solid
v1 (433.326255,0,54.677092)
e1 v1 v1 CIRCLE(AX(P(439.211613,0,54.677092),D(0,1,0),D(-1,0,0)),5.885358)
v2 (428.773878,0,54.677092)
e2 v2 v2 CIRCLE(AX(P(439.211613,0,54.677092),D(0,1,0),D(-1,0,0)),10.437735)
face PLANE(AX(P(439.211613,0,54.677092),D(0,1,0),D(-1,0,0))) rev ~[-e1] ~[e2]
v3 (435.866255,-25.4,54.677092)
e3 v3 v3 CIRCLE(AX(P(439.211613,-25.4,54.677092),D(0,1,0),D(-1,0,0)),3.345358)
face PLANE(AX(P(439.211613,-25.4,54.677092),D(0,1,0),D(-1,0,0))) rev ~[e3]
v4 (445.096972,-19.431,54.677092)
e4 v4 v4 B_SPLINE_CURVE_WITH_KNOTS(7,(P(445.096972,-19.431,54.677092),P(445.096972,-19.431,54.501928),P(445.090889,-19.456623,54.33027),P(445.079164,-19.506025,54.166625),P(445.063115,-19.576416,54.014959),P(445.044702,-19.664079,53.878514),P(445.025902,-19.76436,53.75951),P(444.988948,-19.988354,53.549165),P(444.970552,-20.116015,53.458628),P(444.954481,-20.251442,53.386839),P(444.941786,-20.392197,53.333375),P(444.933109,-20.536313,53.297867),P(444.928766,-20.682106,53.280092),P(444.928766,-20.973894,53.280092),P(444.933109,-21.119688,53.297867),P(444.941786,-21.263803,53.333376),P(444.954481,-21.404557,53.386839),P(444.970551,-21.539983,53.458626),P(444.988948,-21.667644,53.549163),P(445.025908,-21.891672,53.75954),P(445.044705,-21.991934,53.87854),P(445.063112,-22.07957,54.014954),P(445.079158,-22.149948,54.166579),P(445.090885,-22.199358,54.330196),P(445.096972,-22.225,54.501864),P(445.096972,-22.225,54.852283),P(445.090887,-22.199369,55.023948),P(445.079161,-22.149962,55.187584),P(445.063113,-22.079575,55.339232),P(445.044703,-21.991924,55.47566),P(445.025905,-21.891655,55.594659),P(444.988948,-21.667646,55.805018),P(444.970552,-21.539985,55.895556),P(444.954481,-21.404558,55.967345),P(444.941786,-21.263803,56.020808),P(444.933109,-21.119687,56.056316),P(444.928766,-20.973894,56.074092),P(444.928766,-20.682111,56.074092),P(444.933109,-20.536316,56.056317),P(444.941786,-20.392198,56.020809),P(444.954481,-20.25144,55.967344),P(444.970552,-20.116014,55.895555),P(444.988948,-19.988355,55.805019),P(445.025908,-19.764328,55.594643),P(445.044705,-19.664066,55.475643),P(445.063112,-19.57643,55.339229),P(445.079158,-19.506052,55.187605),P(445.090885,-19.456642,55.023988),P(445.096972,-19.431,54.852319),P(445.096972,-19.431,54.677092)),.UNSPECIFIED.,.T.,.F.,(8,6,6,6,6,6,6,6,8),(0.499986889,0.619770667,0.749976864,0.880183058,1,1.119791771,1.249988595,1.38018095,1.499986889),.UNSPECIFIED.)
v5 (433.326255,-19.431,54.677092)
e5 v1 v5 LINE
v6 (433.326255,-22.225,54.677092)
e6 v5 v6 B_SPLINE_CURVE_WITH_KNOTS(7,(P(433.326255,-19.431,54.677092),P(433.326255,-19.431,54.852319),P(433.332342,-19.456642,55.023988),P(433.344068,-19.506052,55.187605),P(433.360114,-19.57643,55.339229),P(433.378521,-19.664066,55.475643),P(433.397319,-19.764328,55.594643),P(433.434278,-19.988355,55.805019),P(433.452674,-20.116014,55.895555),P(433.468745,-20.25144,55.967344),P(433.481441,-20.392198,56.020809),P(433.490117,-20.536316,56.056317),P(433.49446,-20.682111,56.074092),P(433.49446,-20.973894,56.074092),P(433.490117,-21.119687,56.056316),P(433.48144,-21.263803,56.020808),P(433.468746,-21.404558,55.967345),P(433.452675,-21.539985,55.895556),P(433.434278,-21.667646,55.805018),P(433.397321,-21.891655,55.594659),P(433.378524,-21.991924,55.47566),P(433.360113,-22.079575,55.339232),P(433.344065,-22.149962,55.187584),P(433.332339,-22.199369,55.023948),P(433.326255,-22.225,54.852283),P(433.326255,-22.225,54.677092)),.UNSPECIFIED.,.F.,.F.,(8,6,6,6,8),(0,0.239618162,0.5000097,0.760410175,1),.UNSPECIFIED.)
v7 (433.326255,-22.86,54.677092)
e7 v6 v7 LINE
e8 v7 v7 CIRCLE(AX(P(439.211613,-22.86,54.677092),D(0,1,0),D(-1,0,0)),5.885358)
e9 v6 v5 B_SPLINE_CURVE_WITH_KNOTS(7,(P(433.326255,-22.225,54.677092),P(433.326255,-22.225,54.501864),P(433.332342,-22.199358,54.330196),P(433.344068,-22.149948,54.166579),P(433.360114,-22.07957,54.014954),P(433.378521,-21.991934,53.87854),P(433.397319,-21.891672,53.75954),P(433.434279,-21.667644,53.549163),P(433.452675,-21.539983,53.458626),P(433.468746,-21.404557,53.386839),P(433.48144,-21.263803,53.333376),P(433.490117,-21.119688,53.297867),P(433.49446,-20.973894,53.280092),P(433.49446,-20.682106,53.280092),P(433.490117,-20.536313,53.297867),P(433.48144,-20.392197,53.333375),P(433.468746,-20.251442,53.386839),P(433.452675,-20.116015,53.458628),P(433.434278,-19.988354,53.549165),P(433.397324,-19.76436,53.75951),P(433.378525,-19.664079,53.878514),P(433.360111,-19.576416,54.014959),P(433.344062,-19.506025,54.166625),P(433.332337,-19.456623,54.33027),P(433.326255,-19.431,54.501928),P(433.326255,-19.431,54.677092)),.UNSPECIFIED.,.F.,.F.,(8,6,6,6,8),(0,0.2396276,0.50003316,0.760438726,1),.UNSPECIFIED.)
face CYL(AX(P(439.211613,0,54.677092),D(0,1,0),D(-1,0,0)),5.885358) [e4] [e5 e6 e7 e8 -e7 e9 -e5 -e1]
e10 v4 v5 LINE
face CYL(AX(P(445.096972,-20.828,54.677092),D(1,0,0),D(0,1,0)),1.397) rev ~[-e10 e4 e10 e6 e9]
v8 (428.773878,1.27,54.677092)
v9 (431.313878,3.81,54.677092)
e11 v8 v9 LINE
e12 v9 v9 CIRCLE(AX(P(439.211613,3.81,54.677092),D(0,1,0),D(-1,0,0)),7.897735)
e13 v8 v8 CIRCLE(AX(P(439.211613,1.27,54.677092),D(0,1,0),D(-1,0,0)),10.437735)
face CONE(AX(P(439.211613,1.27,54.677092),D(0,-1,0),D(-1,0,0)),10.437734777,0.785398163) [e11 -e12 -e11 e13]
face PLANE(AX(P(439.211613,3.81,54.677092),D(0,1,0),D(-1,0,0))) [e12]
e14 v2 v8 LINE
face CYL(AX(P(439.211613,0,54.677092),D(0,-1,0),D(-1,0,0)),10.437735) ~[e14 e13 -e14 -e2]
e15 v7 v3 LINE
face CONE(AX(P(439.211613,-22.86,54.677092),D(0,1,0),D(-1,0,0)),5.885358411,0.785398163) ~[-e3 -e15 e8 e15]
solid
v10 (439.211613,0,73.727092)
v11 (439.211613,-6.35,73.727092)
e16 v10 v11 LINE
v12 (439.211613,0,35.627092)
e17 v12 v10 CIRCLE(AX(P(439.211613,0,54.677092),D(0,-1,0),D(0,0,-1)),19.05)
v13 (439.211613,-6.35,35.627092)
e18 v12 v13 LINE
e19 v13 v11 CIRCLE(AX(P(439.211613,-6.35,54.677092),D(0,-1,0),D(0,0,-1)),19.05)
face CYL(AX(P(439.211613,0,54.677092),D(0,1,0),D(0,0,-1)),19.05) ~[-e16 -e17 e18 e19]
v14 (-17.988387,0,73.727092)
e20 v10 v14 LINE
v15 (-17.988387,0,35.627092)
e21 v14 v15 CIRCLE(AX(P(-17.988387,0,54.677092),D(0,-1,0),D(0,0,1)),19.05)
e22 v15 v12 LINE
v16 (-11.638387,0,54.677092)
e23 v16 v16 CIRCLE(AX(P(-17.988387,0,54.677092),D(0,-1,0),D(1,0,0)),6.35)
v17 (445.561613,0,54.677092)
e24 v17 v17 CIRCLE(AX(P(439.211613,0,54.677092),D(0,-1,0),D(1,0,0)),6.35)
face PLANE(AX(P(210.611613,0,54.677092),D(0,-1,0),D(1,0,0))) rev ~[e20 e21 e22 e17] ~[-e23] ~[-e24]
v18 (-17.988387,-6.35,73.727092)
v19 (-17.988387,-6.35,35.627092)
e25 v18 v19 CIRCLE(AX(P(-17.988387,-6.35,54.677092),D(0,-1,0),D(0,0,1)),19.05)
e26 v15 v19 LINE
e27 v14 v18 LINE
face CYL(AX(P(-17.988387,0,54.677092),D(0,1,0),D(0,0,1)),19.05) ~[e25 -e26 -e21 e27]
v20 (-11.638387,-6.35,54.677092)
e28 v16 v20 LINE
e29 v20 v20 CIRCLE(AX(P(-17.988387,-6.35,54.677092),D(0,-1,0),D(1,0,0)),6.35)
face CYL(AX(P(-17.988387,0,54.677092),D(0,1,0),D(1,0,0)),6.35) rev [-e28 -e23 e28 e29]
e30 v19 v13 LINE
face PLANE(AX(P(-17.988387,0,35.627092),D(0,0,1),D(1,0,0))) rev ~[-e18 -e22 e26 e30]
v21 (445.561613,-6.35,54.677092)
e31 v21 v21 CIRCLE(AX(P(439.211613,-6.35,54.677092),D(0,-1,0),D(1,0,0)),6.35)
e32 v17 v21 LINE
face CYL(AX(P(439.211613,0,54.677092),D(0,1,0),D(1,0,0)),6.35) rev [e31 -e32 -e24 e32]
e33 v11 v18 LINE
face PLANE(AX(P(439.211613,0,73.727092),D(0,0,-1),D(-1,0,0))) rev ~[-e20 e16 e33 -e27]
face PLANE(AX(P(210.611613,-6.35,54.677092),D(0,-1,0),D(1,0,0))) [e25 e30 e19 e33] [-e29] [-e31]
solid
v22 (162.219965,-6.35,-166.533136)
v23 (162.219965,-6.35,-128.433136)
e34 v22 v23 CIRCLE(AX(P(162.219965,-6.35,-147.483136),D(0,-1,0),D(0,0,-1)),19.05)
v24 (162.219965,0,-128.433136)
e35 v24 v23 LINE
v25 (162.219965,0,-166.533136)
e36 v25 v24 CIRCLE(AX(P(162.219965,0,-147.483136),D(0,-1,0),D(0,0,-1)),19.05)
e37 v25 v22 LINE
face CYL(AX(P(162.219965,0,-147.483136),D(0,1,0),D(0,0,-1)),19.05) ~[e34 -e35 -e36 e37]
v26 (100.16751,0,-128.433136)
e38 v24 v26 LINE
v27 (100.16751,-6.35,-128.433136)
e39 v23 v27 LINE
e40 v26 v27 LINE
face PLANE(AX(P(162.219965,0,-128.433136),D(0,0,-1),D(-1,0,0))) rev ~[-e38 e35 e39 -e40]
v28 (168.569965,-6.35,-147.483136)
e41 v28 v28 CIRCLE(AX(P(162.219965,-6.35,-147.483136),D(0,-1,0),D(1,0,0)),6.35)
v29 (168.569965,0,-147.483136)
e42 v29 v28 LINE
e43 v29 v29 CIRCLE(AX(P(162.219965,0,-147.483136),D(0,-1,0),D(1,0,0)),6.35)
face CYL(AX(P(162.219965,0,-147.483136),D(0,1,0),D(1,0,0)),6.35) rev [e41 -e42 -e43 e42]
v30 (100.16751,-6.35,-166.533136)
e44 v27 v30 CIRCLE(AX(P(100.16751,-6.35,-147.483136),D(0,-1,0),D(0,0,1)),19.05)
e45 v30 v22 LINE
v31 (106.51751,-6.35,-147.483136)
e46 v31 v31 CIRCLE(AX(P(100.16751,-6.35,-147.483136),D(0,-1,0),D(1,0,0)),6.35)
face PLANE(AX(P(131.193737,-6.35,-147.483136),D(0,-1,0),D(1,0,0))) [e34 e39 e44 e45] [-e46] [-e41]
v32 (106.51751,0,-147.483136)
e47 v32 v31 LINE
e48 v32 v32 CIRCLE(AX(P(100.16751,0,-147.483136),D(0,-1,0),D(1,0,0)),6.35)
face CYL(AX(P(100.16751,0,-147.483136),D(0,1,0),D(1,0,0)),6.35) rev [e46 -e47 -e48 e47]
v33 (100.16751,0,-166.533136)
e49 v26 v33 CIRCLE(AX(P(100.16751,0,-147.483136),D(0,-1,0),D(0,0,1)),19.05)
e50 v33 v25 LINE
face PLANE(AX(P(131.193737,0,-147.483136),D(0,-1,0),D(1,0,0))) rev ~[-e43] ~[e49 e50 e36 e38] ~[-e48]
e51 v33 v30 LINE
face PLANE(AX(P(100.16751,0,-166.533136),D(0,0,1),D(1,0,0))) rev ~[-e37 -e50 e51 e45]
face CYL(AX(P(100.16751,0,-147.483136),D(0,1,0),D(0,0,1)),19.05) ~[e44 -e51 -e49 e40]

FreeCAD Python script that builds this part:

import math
import FreeCAD as App
import Part
import Sketcher
from FreeCAD import Vector
Q = App.Units.Quantity


def edges_at(feature, points):
    """Names of the edges that pass closest to the given points."""
    edges = feature.Shape.Edges
    near = lambda p: min(range(len(edges)), key=lambda i: edges[i].distToShape(Part.Vertex(*p))[0])
    return sorted({f"Edge{near(p) + 1}" for p in points})

doc = App.newDocument("Part")
body = doc.addObject("PartDesign::Body", "Body")

# Sketch on XZ plane
sketch1 = doc.addObject("Sketcher::SketchObject", "Sketch")
body.addObject(sketch1)
sketch1.AttachmentSupport = (doc.XZ_Plane, [""])
sketch1.MapMode = "FlatFace"
sketch1.addGeometry([
    Part.LineSegment(Vector(439, 74, 0), Vector(-18, 74, 0)),  # 0
    Part.ArcOfCircle(Part.Circle(Vector(-18, 55, 0), Vector(0, 0, 1), 19), math.radians(90), math.radians(270)),  # 1
    Part.LineSegment(Vector(-18, 36, 0), Vector(439, 36, 0)),  # 2
    Part.ArcOfCircle(Part.Circle(Vector(439, 55, 0), Vector(0, 0, 1), 19), math.radians(-90), math.radians(90)),  # 3
    Part.Circle(Vector(-18, 55, 0), Vector(0, 0, 1), 6),  # 4
    Part.Circle(Vector(439, 55, 0), Vector(0, 0, 1), 6),  # 5
], False)
sketch1.addConstraint([
    Sketcher.Constraint("Tangent", 0, 2, 1, 1),
    Sketcher.Constraint("Tangent", 1, 2, 2, 1),
    Sketcher.Constraint("Tangent", 2, 2, 3, 1),
    Sketcher.Constraint("Tangent", 3, 2, 0, 1),
    Sketcher.Constraint("Horizontal", 0),
    Sketcher.Constraint("Horizontal", 2),
    Sketcher.Constraint("Coincident", 4, 3, 1, 3),
    Sketcher.Constraint("Coincident", 5, 3, 3, 3),
    Sketcher.Constraint("Equal", 4, 5),
    Sketcher.Constraint("Diameter", 4, Q("0.5 in")),
    Sketcher.Constraint("DistanceX", 0, 2, 0, 1, Q("18 in")),
    Sketcher.Constraint("Radius", 1, Q("0.75 in")),
    Sketcher.Constraint("DistanceY", -1, 1, 1, 3, Q("54.677092 mm")),
    Sketcher.Constraint("DistanceX", 1, 3, -1, 1, Q("17.988387 mm")),
])
pad1 = doc.addObject("PartDesign::Pad", "Pad")
body.addObject(pad1)
pad1.Profile = sketch1
pad1.Length = Q("0.25 in")
body2 = doc.addObject("PartDesign::Body", "Body001")

# Sketch on XZ plane
sketch2 = doc.addObject("Sketcher::SketchObject", "Sketch001")
body2.addObject(sketch2)
sketch2.AttachmentSupport = (doc.getObject("XZ_Plane001"), [""])
sketch2.MapMode = "FlatFace"
sketch2.addGeometry(Part.Circle(Vector(439, 55, 0), Vector(0, 0, 1), 6), False)
sketch2.addConstraint([
    Sketcher.Constraint("Diameter", 0, Q("11.770717 mm")),
    Sketcher.Constraint("DistanceY", -1, 1, 0, 3, Q("54.677092 mm")),
    Sketcher.Constraint("DistanceX", -1, 1, 0, 3, Q("439.211613 mm")),
])
pad2 = doc.addObject("PartDesign::Pad", "Pad001")
body2.addObject(pad2)
pad2.Profile = sketch2
pad2.Length = Q("1 in")

# Sketch on XZ plane
sketch3 = doc.addObject("Sketcher::SketchObject", "Sketch002")
body2.addObject(sketch3)
sketch3.AttachmentSupport = (doc.getObject("XZ_Plane001"), [""])
sketch3.MapMode = "FlatFace"
sketch3.addGeometry(Part.Circle(Vector(439, 55, 0), Vector(0, 0, 1), 10), False)
sketch3.addConstraint([
    Sketcher.Constraint("Diameter", 0, Q("20.87547 mm")),
    Sketcher.Constraint("DistanceY", -1, 1, 0, 3, Q("54.677092 mm")),
    Sketcher.Constraint("DistanceX", -1, 1, 0, 3, Q("439.211613 mm")),
])
pad3 = doc.addObject("PartDesign::Pad", "Pad002")
body2.addObject(pad3)
pad3.Profile = sketch3
pad3.Length = Q("0.15 in")
pad3.Reversed = True
doc.recompute()

chamfer = doc.addObject("PartDesign::Chamfer", "Chamfer")
body2.addObject(chamfer)
chamfer.Base = (pad3, edges_at(pad3, [(449.649, 3.81, 54.677), (445.097, -25.4, 54.677)]))
chamfer.Size = Q("0.1 in")

# Sketch on YZ plane
sketch4 = doc.addObject("Sketcher::SketchObject", "Sketch003")
body2.addObject(sketch4)
sketch4.AttachmentSupport = (doc.getObject("YZ_Plane001"), [""])
sketch4.MapMode = "FlatFace"
sketch4.AttachmentOffset = App.Placement(Vector(0, 0, 445.096972), App.Rotation())
sketch4.addGeometry(Part.Circle(Vector(-20.8, 54.7, 0), Vector(0, 0, 1), 1.4), False)
sketch4.addConstraint([
    Sketcher.Constraint("Diameter", 0, Q("0.11 in")),
    Sketcher.Constraint("DistanceX", 0, 3, -1, 1, Q("0.82 in")),
    Sketcher.Constraint("DistanceY", -1, 1, 0, 3, Q("54.677092 mm")),
])
pocket1 = doc.addObject("PartDesign::Pocket", "Pocket")
body2.addObject(pocket1)
pocket1.Profile = sketch4
pocket1.Type = "ThroughAll"
body3 = doc.addObject("PartDesign::Body", "Body002")

# Sketch on XZ plane
sketch5 = doc.addObject("Sketcher::SketchObject", "Sketch004")
body3.addObject(sketch5)
sketch5.AttachmentSupport = (doc.getObject("XZ_Plane002"), [""])
sketch5.MapMode = "FlatFace"
sketch5.addGeometry([
    Part.LineSegment(Vector(162, -128, 0), Vector(100, -128, 0)),  # 0
    Part.ArcOfCircle(Part.Circle(Vector(100, -147, 0), Vector(0, 0, 1), 19), math.radians(90), math.radians(270)),  # 1
    Part.LineSegment(Vector(100, -167, 0), Vector(162, -167, 0)),  # 2
    Part.ArcOfCircle(Part.Circle(Vector(162, -147, 0), Vector(0, 0, 1), 19), math.radians(-90), math.radians(90)),  # 3
    Part.Circle(Vector(100, -147, 0), Vector(0, 0, 1), 6),  # 4
    Part.Circle(Vector(162, -147, 0), Vector(0, 0, 1), 6),  # 5
], False)
sketch5.addConstraint([
    Sketcher.Constraint("Tangent", 0, 2, 1, 1),
    Sketcher.Constraint("Tangent", 1, 2, 2, 1),
    Sketcher.Constraint("Tangent", 2, 2, 3, 1),
    Sketcher.Constraint("Tangent", 3, 2, 0, 1),
    Sketcher.Constraint("Horizontal", 0),
    Sketcher.Constraint("Horizontal", 2),
    Sketcher.Constraint("Coincident", 4, 3, 1, 3),
    Sketcher.Constraint("Coincident", 5, 3, 3, 3),
    Sketcher.Constraint("Equal", 4, 5),
    Sketcher.Constraint("Diameter", 4, Q("0.5 in")),
    Sketcher.Constraint("Radius", 1, Q("0.75 in")),
    Sketcher.Constraint("DistanceX", 0, 2, 0, 1, Q("62.052455 mm")),
    Sketcher.Constraint("DistanceX", -1, 1, 1, 3, Q("100.16751 mm")),
    Sketcher.Constraint("DistanceY", 1, 3, -1, 1, Q("147.483136 mm")),
])
pad4 = doc.addObject("PartDesign::Pad", "Pad003")
body3.addObject(pad4)
pad4.Profile = sketch5
pad4.Length = Q("0.25 in")

doc.recompute()
